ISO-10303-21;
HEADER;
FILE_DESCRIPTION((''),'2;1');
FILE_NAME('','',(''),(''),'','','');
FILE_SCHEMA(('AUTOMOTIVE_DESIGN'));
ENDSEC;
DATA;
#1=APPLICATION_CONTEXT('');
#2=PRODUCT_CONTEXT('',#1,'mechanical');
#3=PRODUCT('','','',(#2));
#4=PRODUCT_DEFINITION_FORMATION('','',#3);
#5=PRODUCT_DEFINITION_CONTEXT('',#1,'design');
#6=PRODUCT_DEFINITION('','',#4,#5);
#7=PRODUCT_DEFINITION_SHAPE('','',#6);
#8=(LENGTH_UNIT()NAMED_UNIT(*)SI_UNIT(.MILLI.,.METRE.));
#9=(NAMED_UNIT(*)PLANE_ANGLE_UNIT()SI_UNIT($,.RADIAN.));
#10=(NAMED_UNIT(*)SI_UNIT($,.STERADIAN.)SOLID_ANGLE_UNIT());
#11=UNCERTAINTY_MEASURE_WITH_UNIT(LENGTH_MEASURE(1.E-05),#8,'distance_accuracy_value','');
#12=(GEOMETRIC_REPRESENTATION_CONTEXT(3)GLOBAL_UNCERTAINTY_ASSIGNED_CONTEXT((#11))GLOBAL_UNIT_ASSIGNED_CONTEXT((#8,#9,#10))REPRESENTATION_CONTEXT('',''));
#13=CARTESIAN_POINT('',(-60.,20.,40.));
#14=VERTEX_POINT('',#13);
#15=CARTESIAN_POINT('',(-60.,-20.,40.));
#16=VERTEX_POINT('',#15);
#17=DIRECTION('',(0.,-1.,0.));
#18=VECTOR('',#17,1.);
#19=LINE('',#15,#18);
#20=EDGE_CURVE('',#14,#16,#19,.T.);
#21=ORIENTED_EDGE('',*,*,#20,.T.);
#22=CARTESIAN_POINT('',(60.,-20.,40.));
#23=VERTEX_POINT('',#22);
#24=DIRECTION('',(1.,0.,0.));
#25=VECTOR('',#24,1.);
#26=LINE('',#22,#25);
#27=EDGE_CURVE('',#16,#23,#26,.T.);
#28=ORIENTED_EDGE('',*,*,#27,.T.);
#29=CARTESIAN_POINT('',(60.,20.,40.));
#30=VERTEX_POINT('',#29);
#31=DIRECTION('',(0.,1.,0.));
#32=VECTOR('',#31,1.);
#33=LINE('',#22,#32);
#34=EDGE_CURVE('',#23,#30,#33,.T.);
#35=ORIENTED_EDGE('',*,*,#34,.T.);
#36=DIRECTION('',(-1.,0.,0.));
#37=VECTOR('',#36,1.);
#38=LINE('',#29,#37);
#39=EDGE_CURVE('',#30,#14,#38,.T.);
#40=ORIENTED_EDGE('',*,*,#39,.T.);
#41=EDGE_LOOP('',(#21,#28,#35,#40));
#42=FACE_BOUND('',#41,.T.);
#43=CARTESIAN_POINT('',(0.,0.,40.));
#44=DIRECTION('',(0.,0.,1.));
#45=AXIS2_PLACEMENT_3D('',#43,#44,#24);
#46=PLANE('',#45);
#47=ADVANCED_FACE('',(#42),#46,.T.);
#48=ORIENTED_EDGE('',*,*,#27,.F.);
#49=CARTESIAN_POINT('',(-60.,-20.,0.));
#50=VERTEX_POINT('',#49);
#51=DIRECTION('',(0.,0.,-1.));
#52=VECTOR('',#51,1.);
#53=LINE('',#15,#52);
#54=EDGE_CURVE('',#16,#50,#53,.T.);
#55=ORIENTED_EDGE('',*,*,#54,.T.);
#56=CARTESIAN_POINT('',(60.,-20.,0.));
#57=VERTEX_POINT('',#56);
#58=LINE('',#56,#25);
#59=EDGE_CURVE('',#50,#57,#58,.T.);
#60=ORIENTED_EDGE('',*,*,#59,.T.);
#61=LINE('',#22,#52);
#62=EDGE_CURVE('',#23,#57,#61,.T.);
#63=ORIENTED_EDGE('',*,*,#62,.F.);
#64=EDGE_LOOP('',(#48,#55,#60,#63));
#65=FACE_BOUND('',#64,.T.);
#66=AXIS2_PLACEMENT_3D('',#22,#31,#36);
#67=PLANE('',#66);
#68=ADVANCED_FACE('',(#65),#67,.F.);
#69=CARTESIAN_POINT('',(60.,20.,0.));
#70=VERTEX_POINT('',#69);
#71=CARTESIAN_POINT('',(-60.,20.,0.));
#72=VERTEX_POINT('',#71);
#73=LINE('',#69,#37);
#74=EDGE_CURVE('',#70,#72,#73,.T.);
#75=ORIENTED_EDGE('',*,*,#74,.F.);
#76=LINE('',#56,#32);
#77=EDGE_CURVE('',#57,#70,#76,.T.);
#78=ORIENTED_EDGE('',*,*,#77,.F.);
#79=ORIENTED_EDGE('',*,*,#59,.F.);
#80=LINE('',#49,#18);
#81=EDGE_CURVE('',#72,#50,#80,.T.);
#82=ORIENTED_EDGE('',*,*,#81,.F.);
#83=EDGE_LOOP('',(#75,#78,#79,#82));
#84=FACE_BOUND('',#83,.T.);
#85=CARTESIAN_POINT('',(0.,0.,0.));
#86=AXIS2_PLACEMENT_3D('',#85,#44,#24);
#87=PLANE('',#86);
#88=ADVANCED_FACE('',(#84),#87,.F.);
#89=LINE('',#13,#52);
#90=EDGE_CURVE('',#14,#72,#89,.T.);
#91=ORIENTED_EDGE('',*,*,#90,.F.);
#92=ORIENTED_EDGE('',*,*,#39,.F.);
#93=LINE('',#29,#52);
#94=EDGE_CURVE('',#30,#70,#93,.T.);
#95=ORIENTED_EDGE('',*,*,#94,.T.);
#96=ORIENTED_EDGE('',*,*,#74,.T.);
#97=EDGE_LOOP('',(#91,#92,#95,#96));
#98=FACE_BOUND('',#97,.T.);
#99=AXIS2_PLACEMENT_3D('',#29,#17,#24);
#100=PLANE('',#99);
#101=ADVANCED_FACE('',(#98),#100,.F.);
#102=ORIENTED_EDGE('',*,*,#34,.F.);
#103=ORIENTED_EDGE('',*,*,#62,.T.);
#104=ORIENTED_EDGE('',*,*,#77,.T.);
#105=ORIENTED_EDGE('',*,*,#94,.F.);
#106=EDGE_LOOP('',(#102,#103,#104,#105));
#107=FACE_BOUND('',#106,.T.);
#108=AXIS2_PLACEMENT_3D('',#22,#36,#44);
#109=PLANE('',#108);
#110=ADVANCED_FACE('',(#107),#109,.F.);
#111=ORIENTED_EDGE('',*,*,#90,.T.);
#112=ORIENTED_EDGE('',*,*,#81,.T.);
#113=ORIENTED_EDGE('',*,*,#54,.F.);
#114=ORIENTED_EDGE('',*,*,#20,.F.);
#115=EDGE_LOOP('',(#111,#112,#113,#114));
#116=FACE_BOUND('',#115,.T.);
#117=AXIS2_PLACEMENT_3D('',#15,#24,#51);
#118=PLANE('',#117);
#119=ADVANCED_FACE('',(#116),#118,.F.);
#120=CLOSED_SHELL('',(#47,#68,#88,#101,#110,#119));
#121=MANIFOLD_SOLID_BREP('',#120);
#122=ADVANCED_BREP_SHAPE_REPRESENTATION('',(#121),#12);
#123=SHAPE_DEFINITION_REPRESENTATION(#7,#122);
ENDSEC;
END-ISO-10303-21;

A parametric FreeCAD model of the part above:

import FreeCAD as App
import Part
import Sketcher

doc = App.newDocument("Part")
body = doc.addObject("PartDesign::Body", "Body")

# Sketch on XY plane
sketch1 = doc.addObject("Sketcher::SketchObject", "Sketch")
body.addObject(sketch1)
sketch1.AttachmentSupport = (doc.XY_Plane, [""])
sketch1.MapMode = "FlatFace"
sketch1.addGeometry(Part.LineSegment(App.Vector(-60, 20, 0), App.Vector(-60, -20, 0)), False)
sketch1.addGeometry(Part.LineSegment(App.Vector(-60, -20, 0), App.Vector(60, -20, 0)), False)
sketch1.addGeometry(Part.LineSegment(App.Vector(60, -20, 0), App.Vector(60, 20, 0)), False)
sketch1.addGeometry(Part.LineSegment(App.Vector(60, 20, 0), App.Vector(-60, 20, 0)), False)
sketch1.addConstraint(Sketcher.Constraint("Coincident", 0, 2, 1, 1))
sketch1.addConstraint(Sketcher.Constraint("Coincident", 1, 2, 2, 1))
sketch1.addConstraint(Sketcher.Constraint("Coincident", 2, 2, 3, 1))
sketch1.addConstraint(Sketcher.Constraint("Coincident", 3, 2, 0, 1))
sketch1.addConstraint(Sketcher.Constraint("Vertical", 0))
sketch1.addConstraint(Sketcher.Constraint("Horizontal", 1))
sketch1.addConstraint(Sketcher.Constraint("Vertical", 2))
sketch1.addConstraint(Sketcher.Constraint("Horizontal", 3))
sketch1.addConstraint(Sketcher.Constraint("Symmetric", 0, 2, 2, 2, -1, 1))
sketch1.addConstraint(Sketcher.Constraint("DistanceX", 1, 1, 1, 2, 120.0))
sketch1.addConstraint(Sketcher.Constraint("DistanceY", 0, 2, 0, 1, 40.0))
pad1 = doc.addObject("PartDesign::Pad", "Pad")
body.addObject(pad1)
pad1.Profile = sketch1
pad1.Length = 40

doc.recompute()
